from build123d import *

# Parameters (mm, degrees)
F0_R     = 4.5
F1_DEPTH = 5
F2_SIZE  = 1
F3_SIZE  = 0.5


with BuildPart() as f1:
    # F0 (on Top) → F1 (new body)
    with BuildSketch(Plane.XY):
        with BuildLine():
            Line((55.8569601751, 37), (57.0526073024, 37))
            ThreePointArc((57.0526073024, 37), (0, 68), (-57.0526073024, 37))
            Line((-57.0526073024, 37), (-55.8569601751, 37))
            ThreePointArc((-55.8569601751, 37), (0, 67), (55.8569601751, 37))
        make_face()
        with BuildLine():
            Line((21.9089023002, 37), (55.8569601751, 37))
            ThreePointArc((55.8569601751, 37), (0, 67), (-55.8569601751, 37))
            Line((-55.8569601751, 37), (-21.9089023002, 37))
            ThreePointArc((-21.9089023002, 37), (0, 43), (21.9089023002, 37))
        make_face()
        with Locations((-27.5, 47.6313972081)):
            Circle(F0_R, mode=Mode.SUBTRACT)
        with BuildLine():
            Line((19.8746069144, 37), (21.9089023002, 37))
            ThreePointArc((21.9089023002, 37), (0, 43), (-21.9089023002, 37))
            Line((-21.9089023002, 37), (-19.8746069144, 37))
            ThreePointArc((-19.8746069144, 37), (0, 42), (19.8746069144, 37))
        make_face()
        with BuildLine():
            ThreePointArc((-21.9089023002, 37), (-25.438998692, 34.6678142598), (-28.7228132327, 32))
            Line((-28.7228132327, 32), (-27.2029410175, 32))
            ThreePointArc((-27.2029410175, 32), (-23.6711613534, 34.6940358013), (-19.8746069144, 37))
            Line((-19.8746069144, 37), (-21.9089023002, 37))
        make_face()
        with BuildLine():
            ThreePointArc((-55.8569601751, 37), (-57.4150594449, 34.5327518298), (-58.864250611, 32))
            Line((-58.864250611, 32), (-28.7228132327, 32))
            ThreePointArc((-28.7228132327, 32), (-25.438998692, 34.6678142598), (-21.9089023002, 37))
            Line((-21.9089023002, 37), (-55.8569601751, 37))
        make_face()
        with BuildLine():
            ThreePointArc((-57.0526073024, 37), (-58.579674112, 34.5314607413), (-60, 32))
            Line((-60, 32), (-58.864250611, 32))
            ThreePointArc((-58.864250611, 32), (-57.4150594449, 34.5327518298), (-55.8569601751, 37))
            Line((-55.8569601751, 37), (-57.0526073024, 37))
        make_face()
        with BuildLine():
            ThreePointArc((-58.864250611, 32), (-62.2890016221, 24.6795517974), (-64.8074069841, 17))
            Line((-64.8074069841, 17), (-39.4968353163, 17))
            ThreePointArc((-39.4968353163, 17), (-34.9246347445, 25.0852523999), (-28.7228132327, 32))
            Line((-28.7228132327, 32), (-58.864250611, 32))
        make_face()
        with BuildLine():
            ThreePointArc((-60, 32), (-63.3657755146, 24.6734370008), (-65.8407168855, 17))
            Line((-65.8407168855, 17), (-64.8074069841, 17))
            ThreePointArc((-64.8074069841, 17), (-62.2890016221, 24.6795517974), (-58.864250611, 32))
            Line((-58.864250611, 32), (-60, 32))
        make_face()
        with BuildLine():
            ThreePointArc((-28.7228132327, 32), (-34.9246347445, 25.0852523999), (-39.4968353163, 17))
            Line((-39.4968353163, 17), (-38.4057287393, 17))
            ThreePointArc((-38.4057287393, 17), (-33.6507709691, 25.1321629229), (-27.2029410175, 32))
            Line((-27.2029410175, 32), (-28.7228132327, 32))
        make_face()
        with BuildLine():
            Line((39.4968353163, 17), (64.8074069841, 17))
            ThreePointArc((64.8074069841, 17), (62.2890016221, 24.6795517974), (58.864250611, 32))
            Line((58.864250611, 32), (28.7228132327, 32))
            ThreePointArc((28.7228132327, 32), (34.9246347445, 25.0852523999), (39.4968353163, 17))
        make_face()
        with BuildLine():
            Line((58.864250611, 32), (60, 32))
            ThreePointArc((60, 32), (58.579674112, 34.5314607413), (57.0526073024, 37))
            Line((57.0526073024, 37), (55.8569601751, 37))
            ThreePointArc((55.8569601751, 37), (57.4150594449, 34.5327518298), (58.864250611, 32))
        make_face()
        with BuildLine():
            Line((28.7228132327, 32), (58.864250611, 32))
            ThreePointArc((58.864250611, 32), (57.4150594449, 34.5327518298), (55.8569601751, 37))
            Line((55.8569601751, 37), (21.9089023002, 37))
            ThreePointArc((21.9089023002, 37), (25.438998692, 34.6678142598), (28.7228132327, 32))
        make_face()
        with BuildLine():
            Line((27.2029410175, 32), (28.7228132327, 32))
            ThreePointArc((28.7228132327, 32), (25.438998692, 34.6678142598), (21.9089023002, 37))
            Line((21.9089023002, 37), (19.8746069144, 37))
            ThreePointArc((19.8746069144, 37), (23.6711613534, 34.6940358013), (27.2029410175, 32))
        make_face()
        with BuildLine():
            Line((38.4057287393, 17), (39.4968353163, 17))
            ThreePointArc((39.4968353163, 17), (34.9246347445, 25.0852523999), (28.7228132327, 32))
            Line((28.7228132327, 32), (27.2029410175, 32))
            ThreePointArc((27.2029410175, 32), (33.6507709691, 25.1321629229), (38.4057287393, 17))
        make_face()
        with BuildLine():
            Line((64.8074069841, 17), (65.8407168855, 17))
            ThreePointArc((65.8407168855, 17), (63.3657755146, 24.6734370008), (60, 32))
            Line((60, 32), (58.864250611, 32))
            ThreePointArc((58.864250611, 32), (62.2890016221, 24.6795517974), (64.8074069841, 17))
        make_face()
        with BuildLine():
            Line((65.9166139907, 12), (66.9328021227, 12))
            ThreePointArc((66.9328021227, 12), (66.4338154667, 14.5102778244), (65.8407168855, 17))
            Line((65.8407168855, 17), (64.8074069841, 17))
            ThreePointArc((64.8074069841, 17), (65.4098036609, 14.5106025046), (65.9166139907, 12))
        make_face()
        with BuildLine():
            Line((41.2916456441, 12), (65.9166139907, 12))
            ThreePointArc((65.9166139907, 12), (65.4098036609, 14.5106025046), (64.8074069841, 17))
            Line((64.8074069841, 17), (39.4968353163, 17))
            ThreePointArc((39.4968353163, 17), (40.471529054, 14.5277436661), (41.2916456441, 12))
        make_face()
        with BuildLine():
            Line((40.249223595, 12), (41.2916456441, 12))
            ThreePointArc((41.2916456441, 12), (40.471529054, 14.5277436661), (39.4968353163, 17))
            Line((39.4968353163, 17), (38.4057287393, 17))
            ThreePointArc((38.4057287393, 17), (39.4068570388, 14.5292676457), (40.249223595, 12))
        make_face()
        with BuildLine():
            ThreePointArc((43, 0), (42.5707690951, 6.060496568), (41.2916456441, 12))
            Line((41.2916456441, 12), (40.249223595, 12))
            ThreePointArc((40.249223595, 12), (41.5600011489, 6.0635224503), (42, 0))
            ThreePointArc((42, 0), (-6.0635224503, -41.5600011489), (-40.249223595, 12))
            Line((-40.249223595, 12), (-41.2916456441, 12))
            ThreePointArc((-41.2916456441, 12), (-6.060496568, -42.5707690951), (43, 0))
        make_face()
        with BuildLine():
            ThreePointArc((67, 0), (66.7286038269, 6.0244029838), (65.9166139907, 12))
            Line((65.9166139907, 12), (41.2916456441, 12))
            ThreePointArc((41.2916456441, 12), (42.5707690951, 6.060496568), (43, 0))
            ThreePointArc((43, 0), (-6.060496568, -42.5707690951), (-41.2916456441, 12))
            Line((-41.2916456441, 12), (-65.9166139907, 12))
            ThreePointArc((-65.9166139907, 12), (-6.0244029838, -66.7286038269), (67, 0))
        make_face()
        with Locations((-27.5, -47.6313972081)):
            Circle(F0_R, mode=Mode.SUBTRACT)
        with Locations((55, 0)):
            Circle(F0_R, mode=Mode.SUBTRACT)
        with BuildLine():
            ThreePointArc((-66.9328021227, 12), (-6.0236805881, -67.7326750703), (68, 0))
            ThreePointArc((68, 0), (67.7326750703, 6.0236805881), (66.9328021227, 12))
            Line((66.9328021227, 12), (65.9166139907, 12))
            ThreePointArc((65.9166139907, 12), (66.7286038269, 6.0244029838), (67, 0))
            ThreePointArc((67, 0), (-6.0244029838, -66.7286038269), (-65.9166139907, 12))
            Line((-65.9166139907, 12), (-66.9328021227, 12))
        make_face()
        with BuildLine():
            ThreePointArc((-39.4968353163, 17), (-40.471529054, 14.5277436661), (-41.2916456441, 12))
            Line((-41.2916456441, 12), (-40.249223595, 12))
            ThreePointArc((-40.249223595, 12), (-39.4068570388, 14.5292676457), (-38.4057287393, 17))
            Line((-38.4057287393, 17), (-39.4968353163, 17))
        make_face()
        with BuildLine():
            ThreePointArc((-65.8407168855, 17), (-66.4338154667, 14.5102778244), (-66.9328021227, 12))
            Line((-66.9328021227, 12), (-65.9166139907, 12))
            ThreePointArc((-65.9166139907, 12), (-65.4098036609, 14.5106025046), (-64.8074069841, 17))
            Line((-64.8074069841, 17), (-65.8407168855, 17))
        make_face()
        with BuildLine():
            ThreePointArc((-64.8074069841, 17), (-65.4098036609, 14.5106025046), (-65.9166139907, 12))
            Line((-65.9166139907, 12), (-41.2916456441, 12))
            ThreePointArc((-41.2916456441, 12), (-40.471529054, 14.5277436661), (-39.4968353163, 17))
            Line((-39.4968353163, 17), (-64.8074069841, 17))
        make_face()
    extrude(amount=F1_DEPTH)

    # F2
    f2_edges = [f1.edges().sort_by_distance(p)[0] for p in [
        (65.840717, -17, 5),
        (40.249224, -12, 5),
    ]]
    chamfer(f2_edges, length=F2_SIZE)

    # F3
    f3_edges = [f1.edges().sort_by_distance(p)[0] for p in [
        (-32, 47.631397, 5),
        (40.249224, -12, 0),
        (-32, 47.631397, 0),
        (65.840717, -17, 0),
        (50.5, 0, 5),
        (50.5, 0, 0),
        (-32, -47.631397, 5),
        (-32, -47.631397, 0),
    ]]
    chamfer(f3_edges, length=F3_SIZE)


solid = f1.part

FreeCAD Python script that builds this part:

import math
import FreeCAD as App
import Part
import Sketcher

V = App.Vector
Q = App.Units.Quantity


def edges_at(feature, points):
    """Names of the edges that pass closest to the given points."""
    edges = feature.Shape.Edges
    near = lambda p: min(range(len(edges)), key=lambda i: edges[i].distToShape(Part.Vertex(*p))[0])
    return sorted({f"Edge{near(p) + 1}" for p in points})

doc = App.newDocument("Part")
body = doc.addObject("PartDesign::Body", "Body")

sketch1 = body.newObject("Sketcher::SketchObject", "Sketch")
sketch1.AttachmentSupport = (doc.getObject("XY_Plane"), [""])
sketch1.MapMode = "FlatFace"
sketch1.addGeometry(Part.ArcOfCircle(Part.Circle(V(0, 0, 0), V(0, 0, 1), 68), math.radians(33), math.radians(147)), False)
sketch1.addGeometry(Part.ArcOfCircle(Part.Circle(V(0, 0, 0), V(0, 0, 1), 68), math.radians(147.04), math.radians(151.93)), False)
sketch1.addGeometry(Part.ArcOfCircle(Part.Circle(V(0, 0, 0), V(0, 0, 1), 68), math.radians(151.93), math.radians(165.52)), False)
sketch1.addGeometry(Part.ArcOfCircle(Part.Circle(V(0, 0, 0), V(0, 0, 1), 68), math.radians(165.52), math.radians(169.84)), False)
sketch1.addGeometry(Part.ArcOfCircle(Part.Circle(V(0, 0, 0), V(0, 0, 1), 68), math.radians(170), math.radians(360)), False)
sketch1.addGeometry(Part.ArcOfCircle(Part.Circle(V(0, 0, 0), V(0, 0, 1), 68), math.radians(0), math.radians(10.16)), False)
sketch1.addGeometry(Part.ArcOfCircle(Part.Circle(V(0, 0, 0), V(0, 0, 1), 68), math.radians(10.16), math.radians(14.48)), False)
sketch1.addGeometry(Part.ArcOfCircle(Part.Circle(V(0, 0, 0), V(0, 0, 1), 68), math.radians(14.48), math.radians(28.07)), False)
sketch1.addGeometry(Part.ArcOfCircle(Part.Circle(V(0, 0, 0), V(0, 0, 1), 68), math.radians(28.07), math.radians(32.96)), False)
sketch1.addGeometry(Part.ArcOfCircle(Part.Circle(V(0, 0, 0), V(0, 0, 1), 42), math.radians(130), math.radians(156)), False)
sketch1.addGeometry(Part.ArcOfCircle(Part.Circle(V(0, 0, 0), V(0, 0, 1), 42), math.radians(118.24), math.radians(130.37)), False)
sketch1.addGeometry(Part.ArcOfCircle(Part.Circle(V(0, 0, 0), V(0, 0, 1), 42), math.radians(62), math.radians(118)), False)
sketch1.addGeometry(Part.ArcOfCircle(Part.Circle(V(0, 0, 0), V(0, 0, 1), 42), math.radians(49.63), math.radians(61.76)), False)
sketch1.addGeometry(Part.ArcOfCircle(Part.Circle(V(0, 0, 0), V(0, 0, 1), 42), math.radians(24), math.radians(50)), False)
sketch1.addGeometry(Part.ArcOfCircle(Part.Circle(V(0, 0, 0), V(0, 0, 1), 42), math.radians(16.6), math.radians(23.88)), False)
sketch1.addGeometry(Part.ArcOfCircle(Part.Circle(V(0, 0, 0), V(0, 0, 1), 42), math.radians(0), math.radians(16.6)), False)
sketch1.addGeometry(Part.ArcOfCircle(Part.Circle(V(0, 0, 0), V(0, 0, 1), 42), math.radians(163), math.radians(360)), False)
sketch1.addGeometry(Part.ArcOfCircle(Part.Circle(V(0, 0, 0), V(0, 0, 1), 42), math.radians(156.12), math.radians(163.4)), False)
sketch1.addGeometry(Part.Circle(V(-27.5, -47.6, 0), V(0, 0, 1), 4.5), False)
sketch1.addGeometry(Part.Circle(V(-27.5, 47.6, 0), V(0, 0, 1), 4.5), False)
sketch1.addGeometry(Part.Circle(V(55, 0, 0), V(0, 0, 1), 4.5), False)
sketch1.addConstraint(Sketcher.Constraint("Tangent", 0, 2, 1, 1))
sketch1.addConstraint(Sketcher.Constraint("Tangent", 1, 2, 2, 1))
sketch1.addConstraint(Sketcher.Constraint("Tangent", 2, 2, 3, 1))
sketch1.addConstraint(Sketcher.Constraint("Tangent", 3, 2, 4, 1))
sketch1.addConstraint(Sketcher.Constraint("Tangent", 4, 2, 5, 1))
sketch1.addConstraint(Sketcher.Constraint("Tangent", 5, 2, 6, 1))
sketch1.addConstraint(Sketcher.Constraint("Tangent", 6, 2, 7, 1))
sketch1.addConstraint(Sketcher.Constraint("Tangent", 7, 2, 8, 1))
sketch1.addConstraint(Sketcher.Constraint("Tangent", 8, 2, 0, 1))
sketch1.addConstraint(Sketcher.Constraint("Tangent", 9, 1, 10, 2))
sketch1.addConstraint(Sketcher.Constraint("Tangent", 10, 1, 11, 2))
sketch1.addConstraint(Sketcher.Constraint("Tangent", 11, 1, 12, 2))
sketch1.addConstraint(Sketcher.Constraint("Tangent", 12, 1, 13, 2))
sketch1.addConstraint(Sketcher.Constraint("Tangent", 13, 1, 14, 2))
sketch1.addConstraint(Sketcher.Constraint("Tangent", 14, 1, 15, 2))
sketch1.addConstraint(Sketcher.Constraint("Tangent", 15, 1, 16, 2))
sketch1.addConstraint(Sketcher.Constraint("Tangent", 16, 1, 17, 2))
sketch1.addConstraint(Sketcher.Constraint("Tangent", 17, 1, 9, 2))
sketch1.addConstraint(Sketcher.Constraint("Coincident", 0, 3, -1, 1))
sketch1.addConstraint(Sketcher.Constraint("Coincident", 2, 3, -1, 1))
sketch1.addConstraint(Sketcher.Constraint("Coincident", 4, 3, -1, 1))
sketch1.addConstraint(Sketcher.Constraint("Coincident", 6, 3, -1, 1))
sketch1.addConstraint(Sketcher.Constraint("Coincident", 9, 3, -1, 1))
sketch1.addConstraint(Sketcher.Constraint("Coincident", 11, 3, -1, 1))
sketch1.addConstraint(Sketcher.Constraint("Coincident", 13, 3, -1, 1))
sketch1.addConstraint(Sketcher.Constraint("Coincident", 15, 3, -1, 1))
sketch1.addConstraint(Sketcher.Constraint("Equal", 18, 19))
sketch1.addConstraint(Sketcher.Constraint("Equal", 19, 20))
sketch1.addConstraint(Sketcher.Constraint("Symmetric", 18, 3, 19, 3, -1))
sketch1.addConstraint(Sketcher.Constraint("PointOnObject", 20, 3, -1))
sketch1.addConstraint(Sketcher.Constraint("PointOnObject", 4, 2, -1))
sketch1.addConstraint(Sketcher.Constraint("PointOnObject", 15, 1, -1))
sketch1.addConstraint(Sketcher.Constraint("Horizontal", 3, 2, 5, 2))
sketch1.addConstraint(Sketcher.Constraint("Horizontal", 2, 2, 6, 2))
sketch1.addConstraint(Sketcher.Constraint("Horizontal", 1, 2, 7, 2))
sketch1.addConstraint(Sketcher.Constraint("Horizontal", 0, 2, 8, 2))
sketch1.addConstraint(Sketcher.Constraint("Horizontal", 7, 2, 9, 1))
sketch1.addConstraint(Sketcher.Constraint("Horizontal", 8, 2, 10, 1))
sketch1.addConstraint(Sketcher.Constraint("Horizontal", 10, 1, 11, 1))
sketch1.addConstraint(Sketcher.Constraint("Horizontal", 9, 1, 12, 1))
sketch1.addConstraint(Sketcher.Constraint("Horizontal", 6, 2, 13, 1))
sketch1.addConstraint(Sketcher.Constraint("Horizontal", 5, 2, 14, 1))
sketch1.addConstraint(Sketcher.Constraint("Horizontal", 14, 1, 16, 1))
sketch1.addConstraint(Sketcher.Constraint("Horizontal", 13, 1, 17, 1))
sketch1.addConstraint(Sketcher.Constraint("Diameter", 18, Q("9 mm")))
sketch1.addConstraint(Sketcher.Constraint("Radius", 0, Q("68 mm")))
sketch1.addConstraint(Sketcher.Constraint("Radius", 9, Q("42 mm")))
sketch1.addConstraint(Sketcher.Constraint("DistanceX", -1, 1, 20, 3, Q("55 mm")))
sketch1.addConstraint(Sketcher.Constraint("DistanceY", -1, 1, 0, 2, Q("37 mm")))
sketch1.addConstraint(Sketcher.Constraint("DistanceX", 1, 2, -1, 1, Q("60 mm")))
sketch1.addConstraint(Sketcher.Constraint("DistanceY", -1, 1, 2, 2, Q("17 mm")))
sketch1.addConstraint(Sketcher.Constraint("DistanceY", -1, 1, 3, 2, Q("12 mm")))
sketch1.addConstraint(Sketcher.Constraint("DistanceX", 18, 3, -1, 1, Q("27.5 mm")))
sketch1.addConstraint(Sketcher.Constraint("DistanceY", 18, 3, -1, 1, Q("47.631397 mm")))
pad1 = body.newObject("PartDesign::Pad", "Pad")
pad1.Profile = sketch1
pad1.Length = 5
doc.recompute()

chamfer = body.newObject("PartDesign::Chamfer", "Chamfer")
chamfer.Base = (pad1, edges_at(pad1, [(-6.024, -67.733, 5), (-6.064, -41.56, 5)]))
chamfer.Size = 1
doc.recompute()

chamfer2 = body.newObject("PartDesign::Chamfer", "Chamfer001")
chamfer2.Base = (chamfer, edges_at(chamfer, [
    (-32, 47.631, 5),
    (-6.064, -41.56, 0),
    (-32, 47.631, 0),
    (-6.024, -67.733, 0),
    (50.5, 0, 5),
    (50.5, 0, 0),
    (-32, -47.631, 5),
    (-32, -47.631, 0),
]))
chamfer2.Size = 0.5

doc.recompute()
